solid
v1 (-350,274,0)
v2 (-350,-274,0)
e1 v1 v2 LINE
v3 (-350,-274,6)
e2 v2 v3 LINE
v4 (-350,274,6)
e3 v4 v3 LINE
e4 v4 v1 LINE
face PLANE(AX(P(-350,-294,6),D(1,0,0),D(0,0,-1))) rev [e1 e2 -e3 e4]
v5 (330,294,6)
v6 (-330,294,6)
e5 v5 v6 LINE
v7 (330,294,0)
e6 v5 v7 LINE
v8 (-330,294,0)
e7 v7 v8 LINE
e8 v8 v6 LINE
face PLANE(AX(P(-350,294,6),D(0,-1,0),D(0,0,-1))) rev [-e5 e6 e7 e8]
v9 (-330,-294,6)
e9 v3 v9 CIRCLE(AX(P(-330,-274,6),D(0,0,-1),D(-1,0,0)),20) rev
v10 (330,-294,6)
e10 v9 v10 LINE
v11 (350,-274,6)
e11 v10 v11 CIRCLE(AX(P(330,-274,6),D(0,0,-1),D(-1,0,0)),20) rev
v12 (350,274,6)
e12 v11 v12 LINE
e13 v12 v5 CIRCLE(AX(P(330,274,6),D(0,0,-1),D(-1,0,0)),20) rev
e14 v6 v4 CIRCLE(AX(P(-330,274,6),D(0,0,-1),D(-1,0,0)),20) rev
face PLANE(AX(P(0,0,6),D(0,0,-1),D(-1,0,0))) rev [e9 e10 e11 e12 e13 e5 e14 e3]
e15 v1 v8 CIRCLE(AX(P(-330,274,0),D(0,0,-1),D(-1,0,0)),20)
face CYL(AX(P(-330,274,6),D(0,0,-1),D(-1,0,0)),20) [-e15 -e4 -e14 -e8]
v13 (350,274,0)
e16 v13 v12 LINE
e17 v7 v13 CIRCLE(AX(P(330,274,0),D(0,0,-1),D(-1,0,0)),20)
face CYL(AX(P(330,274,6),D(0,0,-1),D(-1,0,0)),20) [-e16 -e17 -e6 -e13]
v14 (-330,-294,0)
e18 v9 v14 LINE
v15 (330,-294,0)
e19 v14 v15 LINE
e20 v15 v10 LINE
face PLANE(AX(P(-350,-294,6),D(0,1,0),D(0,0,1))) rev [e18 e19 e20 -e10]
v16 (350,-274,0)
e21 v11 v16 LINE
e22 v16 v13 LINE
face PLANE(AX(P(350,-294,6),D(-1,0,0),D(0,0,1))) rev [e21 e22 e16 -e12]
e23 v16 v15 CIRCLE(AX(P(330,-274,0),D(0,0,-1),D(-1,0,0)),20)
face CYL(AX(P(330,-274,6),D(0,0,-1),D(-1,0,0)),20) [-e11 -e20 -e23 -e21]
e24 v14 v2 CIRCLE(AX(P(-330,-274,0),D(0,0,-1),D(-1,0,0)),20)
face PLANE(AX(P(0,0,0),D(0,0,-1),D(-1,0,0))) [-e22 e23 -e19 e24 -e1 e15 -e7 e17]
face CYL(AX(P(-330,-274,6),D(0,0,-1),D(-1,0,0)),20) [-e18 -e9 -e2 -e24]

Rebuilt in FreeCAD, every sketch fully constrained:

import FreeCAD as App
import Part
import Sketcher
Q = App.Units.Quantity


def edges_at(feature, points):
    """Names of the edges that pass closest to the given points."""
    edges = feature.Shape.Edges
    near = lambda p: min(range(len(edges)), key=lambda i: edges[i].distToShape(Part.Vertex(*p))[0])
    return sorted({f"Edge{near(p) + 1}" for p in points})

doc = App.newDocument("Part")
body = doc.addObject("PartDesign::Body", "Body")

# Sketch on XY plane
sketch1 = doc.addObject("Sketcher::SketchObject", "Sketch")
body.addObject(sketch1)
sketch1.AttachmentSupport = (doc.XY_Plane, [""])
sketch1.MapMode = "FlatFace"
sketch1.addGeometry(Part.LineSegment(App.Vector(-350, 294, 0), App.Vector(-350, -294, 0)), False)
sketch1.addGeometry(Part.LineSegment(App.Vector(-350, -294, 0), App.Vector(350, -294, 0)), False)
sketch1.addGeometry(Part.LineSegment(App.Vector(350, -294, 0), App.Vector(350, 294, 0)), False)
sketch1.addGeometry(Part.LineSegment(App.Vector(350, 294, 0), App.Vector(-350, 294, 0)), False)
sketch1.addConstraint(Sketcher.Constraint("Coincident", 0, 2, 1, 1))
sketch1.addConstraint(Sketcher.Constraint("Coincident", 1, 2, 2, 1))
sketch1.addConstraint(Sketcher.Constraint("Coincident", 2, 2, 3, 1))
sketch1.addConstraint(Sketcher.Constraint("Coincident", 3, 2, 0, 1))
sketch1.addConstraint(Sketcher.Constraint("Vertical", 0))
sketch1.addConstraint(Sketcher.Constraint("Horizontal", 1))
sketch1.addConstraint(Sketcher.Constraint("Vertical", 2))
sketch1.addConstraint(Sketcher.Constraint("Horizontal", 3))
sketch1.addConstraint(Sketcher.Constraint("Symmetric", 0, 2, 2, 2, -1, 1))
sketch1.addConstraint(Sketcher.Constraint("DistanceX", 1, 1, 1, 2, Q("700 mm")))
sketch1.addConstraint(Sketcher.Constraint("DistanceY", 0, 2, 0, 1, Q("588 mm")))
pad1 = doc.addObject("PartDesign::Pad", "Pad")
body.addObject(pad1)
pad1.Profile = sketch1
pad1.Length = 6
doc.recompute()

fillet = doc.addObject("PartDesign::Fillet", "Fillet")
body.addObject(fillet)
fillet.Base = (pad1, edges_at(pad1, [
    (350, -294, 3),
    (-350, -294, 3),
    (-350, 294, 3),
    (350, 294, 3),
]))
fillet.Radius = 20

doc.recompute()
